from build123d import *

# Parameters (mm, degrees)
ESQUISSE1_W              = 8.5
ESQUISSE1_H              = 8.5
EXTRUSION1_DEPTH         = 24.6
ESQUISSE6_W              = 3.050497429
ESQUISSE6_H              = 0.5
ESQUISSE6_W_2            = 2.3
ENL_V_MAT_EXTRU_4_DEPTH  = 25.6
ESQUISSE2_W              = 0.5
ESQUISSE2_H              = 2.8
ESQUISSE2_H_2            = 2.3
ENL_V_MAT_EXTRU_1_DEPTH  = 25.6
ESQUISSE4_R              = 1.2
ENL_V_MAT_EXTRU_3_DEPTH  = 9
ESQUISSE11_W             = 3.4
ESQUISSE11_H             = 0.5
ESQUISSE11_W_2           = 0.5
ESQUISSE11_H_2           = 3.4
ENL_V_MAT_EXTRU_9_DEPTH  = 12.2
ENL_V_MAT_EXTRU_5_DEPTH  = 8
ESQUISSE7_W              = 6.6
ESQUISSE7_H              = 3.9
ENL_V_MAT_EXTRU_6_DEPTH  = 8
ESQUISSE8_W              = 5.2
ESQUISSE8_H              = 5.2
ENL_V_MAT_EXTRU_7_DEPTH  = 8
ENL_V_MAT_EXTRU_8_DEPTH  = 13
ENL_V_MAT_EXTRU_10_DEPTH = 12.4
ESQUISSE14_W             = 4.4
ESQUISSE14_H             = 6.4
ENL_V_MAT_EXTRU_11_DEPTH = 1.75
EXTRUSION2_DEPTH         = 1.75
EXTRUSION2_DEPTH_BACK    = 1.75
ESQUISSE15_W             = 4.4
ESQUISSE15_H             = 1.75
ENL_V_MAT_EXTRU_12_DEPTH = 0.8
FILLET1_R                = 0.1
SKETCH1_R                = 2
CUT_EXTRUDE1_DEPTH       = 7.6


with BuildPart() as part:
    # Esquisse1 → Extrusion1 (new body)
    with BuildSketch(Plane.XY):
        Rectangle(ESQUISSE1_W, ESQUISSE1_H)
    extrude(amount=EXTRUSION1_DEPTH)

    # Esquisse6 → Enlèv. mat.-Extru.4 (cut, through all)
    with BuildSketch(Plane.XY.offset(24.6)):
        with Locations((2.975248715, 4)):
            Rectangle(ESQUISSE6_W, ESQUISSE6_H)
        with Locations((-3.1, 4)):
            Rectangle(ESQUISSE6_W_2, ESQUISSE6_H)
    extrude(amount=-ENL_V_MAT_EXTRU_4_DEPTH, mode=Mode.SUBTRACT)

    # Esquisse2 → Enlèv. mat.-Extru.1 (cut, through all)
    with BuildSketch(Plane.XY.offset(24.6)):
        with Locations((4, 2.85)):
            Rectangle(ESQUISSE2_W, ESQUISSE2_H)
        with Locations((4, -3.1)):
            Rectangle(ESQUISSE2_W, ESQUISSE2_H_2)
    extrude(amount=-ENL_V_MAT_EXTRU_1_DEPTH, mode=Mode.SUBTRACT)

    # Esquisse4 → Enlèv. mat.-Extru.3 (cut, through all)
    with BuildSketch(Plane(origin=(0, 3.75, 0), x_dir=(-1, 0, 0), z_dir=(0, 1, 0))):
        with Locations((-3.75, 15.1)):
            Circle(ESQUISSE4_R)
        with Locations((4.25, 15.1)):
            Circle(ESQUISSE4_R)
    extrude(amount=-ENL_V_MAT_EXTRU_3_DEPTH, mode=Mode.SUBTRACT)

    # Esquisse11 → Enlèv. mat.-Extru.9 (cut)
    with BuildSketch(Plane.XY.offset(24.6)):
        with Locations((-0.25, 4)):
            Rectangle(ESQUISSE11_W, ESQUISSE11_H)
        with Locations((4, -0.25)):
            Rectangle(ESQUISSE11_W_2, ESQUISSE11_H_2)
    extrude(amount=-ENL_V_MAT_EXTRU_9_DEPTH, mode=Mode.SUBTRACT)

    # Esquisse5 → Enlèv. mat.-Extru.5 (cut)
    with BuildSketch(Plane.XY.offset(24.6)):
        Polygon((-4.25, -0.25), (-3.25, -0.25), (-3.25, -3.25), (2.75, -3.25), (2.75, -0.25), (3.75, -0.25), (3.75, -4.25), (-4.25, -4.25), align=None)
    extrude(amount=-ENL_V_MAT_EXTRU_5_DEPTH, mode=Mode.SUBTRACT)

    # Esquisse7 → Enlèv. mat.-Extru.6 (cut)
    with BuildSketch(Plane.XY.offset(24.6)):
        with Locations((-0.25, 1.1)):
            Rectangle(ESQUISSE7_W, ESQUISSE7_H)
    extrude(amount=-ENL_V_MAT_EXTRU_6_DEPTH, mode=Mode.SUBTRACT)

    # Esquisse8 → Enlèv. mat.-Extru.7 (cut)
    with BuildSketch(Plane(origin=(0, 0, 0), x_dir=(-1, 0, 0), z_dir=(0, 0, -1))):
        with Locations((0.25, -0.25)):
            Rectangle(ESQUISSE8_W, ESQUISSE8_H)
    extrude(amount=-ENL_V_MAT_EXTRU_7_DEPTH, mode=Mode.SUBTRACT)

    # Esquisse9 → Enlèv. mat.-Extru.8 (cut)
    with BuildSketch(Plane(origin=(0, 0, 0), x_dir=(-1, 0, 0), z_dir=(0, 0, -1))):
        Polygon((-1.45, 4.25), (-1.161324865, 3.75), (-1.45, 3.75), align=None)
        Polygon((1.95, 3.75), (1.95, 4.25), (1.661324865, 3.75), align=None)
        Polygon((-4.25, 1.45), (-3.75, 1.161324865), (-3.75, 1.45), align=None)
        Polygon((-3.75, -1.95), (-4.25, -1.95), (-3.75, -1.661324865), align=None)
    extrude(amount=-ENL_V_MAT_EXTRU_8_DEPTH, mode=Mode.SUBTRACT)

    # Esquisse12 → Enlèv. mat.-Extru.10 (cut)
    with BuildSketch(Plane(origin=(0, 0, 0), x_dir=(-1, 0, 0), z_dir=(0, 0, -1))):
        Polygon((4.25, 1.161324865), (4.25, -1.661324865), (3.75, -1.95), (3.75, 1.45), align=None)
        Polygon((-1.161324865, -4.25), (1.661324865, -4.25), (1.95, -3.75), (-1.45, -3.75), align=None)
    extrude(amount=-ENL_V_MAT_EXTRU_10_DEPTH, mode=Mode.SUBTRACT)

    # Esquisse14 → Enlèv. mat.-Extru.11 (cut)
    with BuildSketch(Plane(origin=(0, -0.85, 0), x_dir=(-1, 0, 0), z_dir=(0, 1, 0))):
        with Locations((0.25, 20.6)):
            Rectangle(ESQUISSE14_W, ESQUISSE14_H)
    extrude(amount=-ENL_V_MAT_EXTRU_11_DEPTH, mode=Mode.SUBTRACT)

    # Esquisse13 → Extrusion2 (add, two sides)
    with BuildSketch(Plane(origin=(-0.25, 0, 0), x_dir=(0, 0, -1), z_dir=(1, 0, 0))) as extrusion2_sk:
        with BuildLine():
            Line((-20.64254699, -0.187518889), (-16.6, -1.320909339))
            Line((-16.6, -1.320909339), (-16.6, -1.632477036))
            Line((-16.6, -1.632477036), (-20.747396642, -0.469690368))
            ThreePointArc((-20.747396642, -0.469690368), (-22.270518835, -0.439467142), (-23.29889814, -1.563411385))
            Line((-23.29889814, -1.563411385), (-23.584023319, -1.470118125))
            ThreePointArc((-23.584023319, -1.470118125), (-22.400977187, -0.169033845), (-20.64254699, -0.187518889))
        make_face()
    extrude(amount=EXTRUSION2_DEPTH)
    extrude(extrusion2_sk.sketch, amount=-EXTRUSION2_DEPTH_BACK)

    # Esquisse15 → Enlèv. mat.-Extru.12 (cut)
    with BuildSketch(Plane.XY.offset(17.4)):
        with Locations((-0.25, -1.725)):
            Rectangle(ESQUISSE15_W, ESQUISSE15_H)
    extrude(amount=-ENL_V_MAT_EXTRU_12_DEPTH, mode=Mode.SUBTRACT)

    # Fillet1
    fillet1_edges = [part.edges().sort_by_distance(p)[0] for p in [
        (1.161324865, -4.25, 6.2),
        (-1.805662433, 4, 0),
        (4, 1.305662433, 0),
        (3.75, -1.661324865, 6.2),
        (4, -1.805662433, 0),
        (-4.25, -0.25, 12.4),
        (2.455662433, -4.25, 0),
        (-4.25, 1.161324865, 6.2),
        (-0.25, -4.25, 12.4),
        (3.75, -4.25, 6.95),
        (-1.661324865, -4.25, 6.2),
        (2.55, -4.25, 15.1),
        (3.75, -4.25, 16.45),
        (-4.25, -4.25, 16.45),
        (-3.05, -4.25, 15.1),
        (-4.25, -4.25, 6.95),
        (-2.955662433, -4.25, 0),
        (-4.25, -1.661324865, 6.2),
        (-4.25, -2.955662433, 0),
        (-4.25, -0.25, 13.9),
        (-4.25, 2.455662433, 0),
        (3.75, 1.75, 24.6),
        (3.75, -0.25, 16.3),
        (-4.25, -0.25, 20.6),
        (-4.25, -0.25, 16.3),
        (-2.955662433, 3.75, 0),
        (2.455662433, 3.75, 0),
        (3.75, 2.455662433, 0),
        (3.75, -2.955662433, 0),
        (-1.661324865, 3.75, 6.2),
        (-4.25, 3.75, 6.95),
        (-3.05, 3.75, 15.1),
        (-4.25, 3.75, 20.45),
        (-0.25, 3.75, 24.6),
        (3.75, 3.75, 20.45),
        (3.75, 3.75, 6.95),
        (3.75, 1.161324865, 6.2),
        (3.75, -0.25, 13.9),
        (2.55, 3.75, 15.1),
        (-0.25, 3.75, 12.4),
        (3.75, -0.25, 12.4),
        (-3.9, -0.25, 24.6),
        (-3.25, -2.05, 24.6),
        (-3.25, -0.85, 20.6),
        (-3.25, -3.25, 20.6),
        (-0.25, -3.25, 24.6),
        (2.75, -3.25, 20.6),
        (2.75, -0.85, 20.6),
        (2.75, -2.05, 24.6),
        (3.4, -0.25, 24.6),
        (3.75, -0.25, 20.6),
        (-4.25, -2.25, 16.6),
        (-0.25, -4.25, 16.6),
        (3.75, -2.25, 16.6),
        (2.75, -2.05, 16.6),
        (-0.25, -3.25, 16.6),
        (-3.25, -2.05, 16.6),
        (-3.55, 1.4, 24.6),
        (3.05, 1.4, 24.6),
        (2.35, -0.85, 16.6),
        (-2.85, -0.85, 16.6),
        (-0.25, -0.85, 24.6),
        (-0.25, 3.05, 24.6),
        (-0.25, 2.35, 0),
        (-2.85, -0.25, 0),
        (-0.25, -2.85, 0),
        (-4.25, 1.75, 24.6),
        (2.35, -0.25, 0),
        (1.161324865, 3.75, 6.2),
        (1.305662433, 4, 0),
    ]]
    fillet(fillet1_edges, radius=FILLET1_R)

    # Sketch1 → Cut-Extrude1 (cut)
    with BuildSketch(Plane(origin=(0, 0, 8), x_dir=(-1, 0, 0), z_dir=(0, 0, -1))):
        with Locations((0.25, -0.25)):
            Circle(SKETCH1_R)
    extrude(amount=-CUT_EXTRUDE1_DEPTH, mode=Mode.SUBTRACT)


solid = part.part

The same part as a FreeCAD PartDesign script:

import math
import FreeCAD as App
import Part
import Sketcher

V = App.Vector
Q = App.Units.Quantity


def edges_at(feature, points):
    """Names of the edges that pass closest to the given points."""
    edges = feature.Shape.Edges
    near = lambda p: min(range(len(edges)), key=lambda i: edges[i].distToShape(Part.Vertex(*p))[0])
    return sorted({f"Edge{near(p) + 1}" for p in points})


def add_polygon(sketch, points):
    """Adds a closed chain of lines whose ends are joined by coincident constraints."""
    first, n = sketch.GeometryCount, len(points)
    for a, b in zip(points, points[1:] + points[:1]):
        sketch.addGeometry(Part.LineSegment(App.Vector(*a, 0), App.Vector(*b, 0)), False)
    for i in range(n):
        sketch.addConstraint(Sketcher.Constraint("Coincident", first + i, 2, first + (i + 1) % n, 1))

doc = App.newDocument("Part")
body = doc.addObject("PartDesign::Body", "Body")
body.AllowCompound = True

sketch1 = body.newObject("Sketcher::SketchObject", "Sketch")
sketch1.AttachmentSupport = (doc.getObject("XY_Plane"), [""])
sketch1.MapMode = "FlatFace"
add_polygon(sketch1, [(-4, 4), (-4, -4), (4, -4), (4, 4)])
sketch1.addConstraint(Sketcher.Constraint("Vertical", 0))
sketch1.addConstraint(Sketcher.Constraint("Horizontal", 1))
sketch1.addConstraint(Sketcher.Constraint("Vertical", 2))
sketch1.addConstraint(Sketcher.Constraint("Horizontal", 3))
sketch1.addConstraint(Sketcher.Constraint("Symmetric", 0, 2, 2, 2, -1, 1))
sketch1.addConstraint(Sketcher.Constraint("Equal", 3, 0))
sketch1.addConstraint(Sketcher.Constraint("DistanceX", 1, 1, 1, 2, Q("8.5 mm")))
pad1 = body.newObject("PartDesign::Pad", "Pad")
pad1.Profile = sketch1
pad1.Length = 24.6

sketch2 = body.newObject("Sketcher::SketchObject", "Sketch001")
sketch2.AttachmentSupport = (doc.getObject("XY_Plane"), [""])
sketch2.MapMode = "FlatFace"
sketch2.AttachmentOffset = App.Placement(V(0, 0, 24.6), App.Rotation())
add_polygon(sketch2, [(1.5, 4.2), (1.5, 3.8), (4.5, 3.8), (4.5, 4.2)])
add_polygon(sketch2, [(-4.2, 4.2), (-4.2, 3.8), (-1.9, 3.8), (-1.9, 4.2)])
sketch2.addConstraint(Sketcher.Constraint("Vertical", 0))
sketch2.addConstraint(Sketcher.Constraint("Horizontal", 1))
sketch2.addConstraint(Sketcher.Constraint("Vertical", 2))
sketch2.addConstraint(Sketcher.Constraint("Horizontal", 3))
sketch2.addConstraint(Sketcher.Constraint("Vertical", 4))
sketch2.addConstraint(Sketcher.Constraint("Horizontal", 5))
sketch2.addConstraint(Sketcher.Constraint("Vertical", 6))
sketch2.addConstraint(Sketcher.Constraint("Horizontal", 7))
sketch2.addConstraint(Sketcher.Constraint("Horizontal", 1, 2, 4, 2))
sketch2.addConstraint(Sketcher.Constraint("Horizontal", 3, 2, 6, 2))
sketch2.addConstraint(Sketcher.Constraint("DistanceX", 5, 1, 5, 2, Q("2.3 mm")))
sketch2.addConstraint(Sketcher.Constraint("DistanceY", 0, 2, 0, 1, Q("0.5 mm")))
sketch2.addConstraint(Sketcher.Constraint("DistanceX", 4, 2, 0, 2, Q("5.7 mm")))
sketch2.addConstraint(Sketcher.Constraint("DistanceX", -1, 1, 0, 2, Q("1.45 mm")))
sketch2.addConstraint(Sketcher.Constraint("DistanceY", -1, 1, 0, 2, Q("3.75 mm")))
sketch2.addConstraint(Sketcher.Constraint("DistanceX", 1, 1, 1, 2, Q("3.050497 mm")))
pocket1 = body.newObject("PartDesign::Pocket", "Pocket")
pocket1.Profile = sketch2
pocket1.Type = "ThroughAll"

sketch3 = body.newObject("Sketcher::SketchObject", "Sketch002")
sketch3.AttachmentSupport = (doc.getObject("XY_Plane"), [""])
sketch3.MapMode = "FlatFace"
sketch3.AttachmentOffset = App.Placement(V(0, 0, 24.6), App.Rotation())
add_polygon(sketch3, [(3.8, 4.2), (3.8, 1.4), (4.2, 1.4), (4.2, 4.2)])
add_polygon(sketch3, [(3.8, -1.9), (3.8, -4.2), (4.2, -4.2), (4.2, -1.9)])
sketch3.addConstraint(Sketcher.Constraint("Vertical", 0))
sketch3.addConstraint(Sketcher.Constraint("Horizontal", 1))
sketch3.addConstraint(Sketcher.Constraint("Vertical", 2))
sketch3.addConstraint(Sketcher.Constraint("Horizontal", 3))
sketch3.addConstraint(Sketcher.Constraint("Vertical", 4))
sketch3.addConstraint(Sketcher.Constraint("Horizontal", 5))
sketch3.addConstraint(Sketcher.Constraint("Vertical", 6))
sketch3.addConstraint(Sketcher.Constraint("Horizontal", 7))
sketch3.addConstraint(Sketcher.Constraint("Symmetric", 3, 2, 4, 2, -1))
sketch3.addConstraint(Sketcher.Constraint("Vertical", 2, 2, 5, 2))
sketch3.addConstraint(Sketcher.Constraint("DistanceX", 1, 1, 1, 2, Q("0.5 mm")))
sketch3.addConstraint(Sketcher.Constraint("DistanceY", 0, 2, 0, 1, Q("2.8 mm")))
sketch3.addConstraint(Sketcher.Constraint("DistanceY", 4, 2, 4, 1, Q("2.3 mm")))
sketch3.addConstraint(Sketcher.Constraint("DistanceY", 4, 2, 0, 2, Q("5.7 mm")))
sketch3.addConstraint(Sketcher.Constraint("DistanceX", -1, 1, 0, 2, Q("3.75 mm")))
pocket2 = body.newObject("PartDesign::Pocket", "Pocket001")
pocket2.Profile = sketch3
pocket2.Type = "ThroughAll"

sketch4 = body.newObject("Sketcher::SketchObject", "Sketch003")
sketch4.AttachmentSupport = (doc.getObject("XZ_Plane"), [""])
sketch4.MapMode = "FlatFace"
sketch4.AttachmentOffset = App.Placement(V(0, 0, -3.75), App.Rotation())
sketch4.addGeometry(Part.Circle(V(3.8, 15.1, 0), V(0, 0, 1), 1.2), False)
sketch4.addGeometry(Part.Circle(V(-4.2, 15.1, 0), V(0, 0, 1), 1.2), False)
sketch4.addConstraint(Sketcher.Constraint("Equal", 0, 1))
sketch4.addConstraint(Sketcher.Constraint("Horizontal", 0, 3, 1, 3))
sketch4.addConstraint(Sketcher.Constraint("Diameter", 0, Q("2.4 mm")))
sketch4.addConstraint(Sketcher.Constraint("DistanceX", 1, 3, 0, 3, Q("8 mm")))
sketch4.addConstraint(Sketcher.Constraint("DistanceY", -1, 1, 0, 3, Q("15.1 mm")))
sketch4.addConstraint(Sketcher.Constraint("DistanceX", -1, 1, 0, 3, Q("3.75 mm")))
pocket3 = body.newObject("PartDesign::Pocket", "Pocket002")
pocket3.Profile = sketch4
pocket3.Type = "ThroughAll"
pocket3.Reversed = True

sketch5 = body.newObject("Sketcher::SketchObject", "Sketch004")
sketch5.AttachmentSupport = (doc.getObject("XY_Plane"), [""])
sketch5.MapMode = "FlatFace"
sketch5.AttachmentOffset = App.Placement(V(0, 0, 24.6), App.Rotation())
add_polygon(sketch5, [(-1.9, 4.2), (-1.9, 3.8), (1.4, 3.8), (1.4, 4.2)])
add_polygon(sketch5, [(3.8, 1.4), (3.8, -1.9), (4.2, -1.9), (4.2, 1.4)])
sketch5.addConstraint(Sketcher.Constraint("Vertical", 0))
sketch5.addConstraint(Sketcher.Constraint("Horizontal", 1))
sketch5.addConstraint(Sketcher.Constraint("Vertical", 2))
sketch5.addConstraint(Sketcher.Constraint("Horizontal", 3))
sketch5.addConstraint(Sketcher.Constraint("Vertical", 4))
sketch5.addConstraint(Sketcher.Constraint("Horizontal", 5))
sketch5.addConstraint(Sketcher.Constraint("Vertical", 6))
sketch5.addConstraint(Sketcher.Constraint("Horizontal", 7))
sketch5.addConstraint(Sketcher.Constraint("Equal", 7, 0))
sketch5.addConstraint(Sketcher.Constraint("Equal", 3, 4))
sketch5.addConstraint(Sketcher.Constraint("DistanceX", 1, 1, 1, 2, Q("3.4 mm")))
sketch5.addConstraint(Sketcher.Constraint("DistanceX", 5, 1, 5, 2, Q("0.5 mm")))
sketch5.addConstraint(Sketcher.Constraint("DistanceX", 1, 2, 4, 2, Q("2.3 mm")))
sketch5.addConstraint(Sketcher.Constraint("DistanceY", 4, 2, 1, 2, Q("5.7 mm")))
sketch5.addConstraint(Sketcher.Constraint("DistanceX", 0, 2, -1, 1, Q("1.95 mm")))
sketch5.addConstraint(Sketcher.Constraint("DistanceY", -1, 1, 0, 2, Q("3.75 mm")))
pocket4 = body.newObject("PartDesign::Pocket", "Pocket003")
pocket4.Profile = sketch5
pocket4.Length = 12.2

sketch6 = body.newObject("Sketcher::SketchObject", "Sketch005")
sketch6.AttachmentSupport = (doc.getObject("XY_Plane"), [""])
sketch6.MapMode = "FlatFace"
sketch6.AttachmentOffset = App.Placement(V(0, 0, 24.6), App.Rotation())
add_polygon(sketch6, [(-3.2, -0.2), (-4.2, -0.2), (-4.2, -4.2), (3.8, -4.2), (3.8, -0.2), (2.8, -0.2), (2.8, -3.2), (-3.2, -3.2)])
sketch6.addConstraint(Sketcher.Constraint("Horizontal", 0))
sketch6.addConstraint(Sketcher.Constraint("Vertical", 1))
sketch6.addConstraint(Sketcher.Constraint("Horizontal", 2))
sketch6.addConstraint(Sketcher.Constraint("Vertical", 3))
sketch6.addConstraint(Sketcher.Constraint("Horizontal", 4))
sketch6.addConstraint(Sketcher.Constraint("Vertical", 5))
sketch6.addConstraint(Sketcher.Constraint("Horizontal", 6))
sketch6.addConstraint(Sketcher.Constraint("Vertical", 7))
sketch6.addConstraint(Sketcher.Constraint("Horizontal", 0, 2, 3, 2))
sketch6.addConstraint(Sketcher.Constraint("Equal", 0, 4))
sketch6.addConstraint(Sketcher.Constraint("DistanceX", 0, 2, 0, 1, Q("1 mm")))
sketch6.addConstraint(Sketcher.Constraint("DistanceX", 2, 1, 2, 2, Q("8 mm")))
sketch6.addConstraint(Sketcher.Constraint("DistanceY", 1, 2, 1, 1, Q("4 mm")))
sketch6.addConstraint(Sketcher.Constraint("DistanceY", 5, 2, 5, 1, Q("3 mm")))
sketch6.addConstraint(Sketcher.Constraint("DistanceX", 0, 2, -1, 1, Q("4.25 mm")))
sketch6.addConstraint(Sketcher.Constraint("DistanceY", 0, 2, -1, 1, Q("0.25 mm")))
pocket5 = body.newObject("PartDesign::Pocket", "Pocket004")
pocket5.Profile = sketch6
pocket5.Length = 8

sketch7 = body.newObject("Sketcher::SketchObject", "Sketch006")
sketch7.AttachmentSupport = (doc.getObject("XY_Plane"), [""])
sketch7.MapMode = "FlatFace"
sketch7.AttachmentOffset = App.Placement(V(0, 0, 24.6), App.Rotation())
add_polygon(sketch7, [(-3.5, 3), (-3.5, -0.8), (3, -0.8), (3, 3)])
sketch7.addConstraint(Sketcher.Constraint("Vertical", 0))
sketch7.addConstraint(Sketcher.Constraint("Horizontal", 1))
sketch7.addConstraint(Sketcher.Constraint("Vertical", 2))
sketch7.addConstraint(Sketcher.Constraint("Horizontal", 3))
sketch7.addConstraint(Sketcher.Constraint("DistanceX", 1, 1, 1, 2, Q("6.6 mm")))
sketch7.addConstraint(Sketcher.Constraint("DistanceY", 0, 2, 0, 1, Q("3.9 mm")))
sketch7.addConstraint(Sketcher.Constraint("DistanceX", 0, 2, -1, 1, Q("3.55 mm")))
sketch7.addConstraint(Sketcher.Constraint("DistanceY", 0, 2, -1, 1, Q("0.85 mm")))
pocket6 = body.newObject("PartDesign::Pocket", "Pocket005")
pocket6.Profile = sketch7
pocket6.Length = 8

sketch8 = body.newObject("Sketcher::SketchObject", "Sketch007")
sketch8.AttachmentSupport = (doc.getObject("XY_Plane"), [""])
sketch8.MapMode = "FlatFace"
add_polygon(sketch8, [(2, 2), (2, -3), (-3, -3), (-3, 2)])
sketch8.addConstraint(Sketcher.Constraint("Vertical", 0))
sketch8.addConstraint(Sketcher.Constraint("Horizontal", 1))
sketch8.addConstraint(Sketcher.Constraint("Vertical", 2))
sketch8.addConstraint(Sketcher.Constraint("Horizontal", 3))
sketch8.addConstraint(Sketcher.Constraint("Equal", 3, 0))
sketch8.addConstraint(Sketcher.Constraint("DistanceX", 1, 2, 1, 1, Q("5.2 mm")))
sketch8.addConstraint(Sketcher.Constraint("DistanceX", -1, 1, 0, 2, Q("2.35 mm")))
sketch8.addConstraint(Sketcher.Constraint("DistanceY", 0, 2, -1, 1, Q("2.85 mm")))
pocket7 = body.newObject("PartDesign::Pocket", "Pocket006")
pocket7.Profile = sketch8
pocket7.Length = 8
pocket7.Reversed = True

sketch9 = body.newObject("Sketcher::SketchObject", "Sketch008")
sketch9.AttachmentSupport = (doc.getObject("XY_Plane"), [""])
sketch9.MapMode = "FlatFace"
add_polygon(sketch9, [(1.16, 3.75), (1.45, 4.25), (1.45, 3.75)])
add_polygon(sketch9, [(-1.95, 3.75), (-1.95, 4.25), (-1.66, 3.75)])
add_polygon(sketch9, [(4.25, 1.45), (3.75, 1.16), (3.75, 1.45)])
add_polygon(sketch9, [(4.25, -1.95), (3.75, -1.95), (3.75, -1.66)])
sketch9.addConstraint(Sketcher.Constraint("Vertical", 1))
sketch9.addConstraint(Sketcher.Constraint("Horizontal", 2))
sketch9.addConstraint(Sketcher.Constraint("Vertical", 3))
sketch9.addConstraint(Sketcher.Constraint("Horizontal", 5))
sketch9.addConstraint(Sketcher.Constraint("Vertical", 7))
sketch9.addConstraint(Sketcher.Constraint("Horizontal", 8))
sketch9.addConstraint(Sketcher.Constraint("Horizontal", 9))
sketch9.addConstraint(Sketcher.Constraint("Vertical", 10))
sketch9.addConstraint(Sketcher.Constraint("Perpendicular", 4, 6))
sketch9.addConstraint(Sketcher.Constraint("Perpendicular", 0, 11))
sketch9.addConstraint(Sketcher.Constraint("Horizontal", 0, 2, 3, 2))
sketch9.addConstraint(Sketcher.Constraint("Horizontal", 2, 2, 4, 2))
sketch9.addConstraint(Sketcher.Constraint("Vertical", 7, 2, 9, 2))
sketch9.addConstraint(Sketcher.Constraint("Vertical", 8, 2, 11, 2))
sketch9.addConstraint(Sketcher.Constraint("Equal", 2, 5))
sketch9.addConstraint(Sketcher.Constraint("Equal", 9, 1))
sketch9.addConstraint(Sketcher.Constraint("Angle", 0, Q("60 deg")))
sketch9.addConstraint(Sketcher.Constraint("DistanceX", 8, 1, 8, 2, Q("0.5 mm")))
sketch9.addConstraint(Sketcher.Constraint("DistanceX", 3, 2, 0, 2, Q("3.4 mm")))
sketch9.addConstraint(Sketcher.Constraint("DistanceX", 1, 2, 6, 2, Q("2.3 mm")))
sketch9.addConstraint(Sketcher.Constraint("DistanceY", 7, 2, 1, 2, Q("2.3 mm")))
sketch9.addConstraint(Sketcher.Constraint("DistanceY", 9, 2, 7, 2, Q("3.4 mm")))
sketch9.addConstraint(Sketcher.Constraint("DistanceX", -1, 1, 0, 2, Q("1.45 mm")))
sketch9.addConstraint(Sketcher.Constraint("DistanceY", -1, 1, 0, 2, Q("4.25 mm")))
pocket8 = body.newObject("PartDesign::Pocket", "Pocket007")
pocket8.Profile = sketch9
pocket8.Length = 13
pocket8.Reversed = True

sketch10 = body.newObject("Sketcher::SketchObject", "Sketch009")
sketch10.AttachmentSupport = (doc.getObject("XY_Plane"), [""])
sketch10.MapMode = "FlatFace"
add_polygon(sketch10, [(-4.2, -1.7), (-4.2, 1.2), (-3.8, 1.4), (-3.8, -1.9)])
add_polygon(sketch10, [(1.2, -4.2), (-1.7, -4.2), (-1.9, -3.8), (1.4, -3.8)])
sketch10.addConstraint(Sketcher.Constraint("Vertical", 0))
sketch10.addConstraint(Sketcher.Constraint("Vertical", 2))
sketch10.addConstraint(Sketcher.Constraint("Horizontal", 4))
sketch10.addConstraint(Sketcher.Constraint("Horizontal", 6))
sketch10.addConstraint(Sketcher.Constraint("Perpendicular", 1, 5))
sketch10.addConstraint(Sketcher.Constraint("Perpendicular", 3, 7))
sketch10.addConstraint(Sketcher.Constraint("Equal", 4, 0))
sketch10.addConstraint(Sketcher.Constraint("Equal", 6, 2))
sketch10.addConstraint(Sketcher.Constraint("Equal", 1, 3))
sketch10.addConstraint(Sketcher.Constraint("Angle", 1, Q("30 deg")))
sketch10.addConstraint(Sketcher.Constraint("DistanceX", 6, 1, 6, 2, Q("3.4 mm")))
sketch10.addConstraint(Sketcher.Constraint("DistanceX", 0, 2, 1, 2, Q("0.5 mm")))
sketch10.addConstraint(Sketcher.Constraint("DistanceY", 4, 2, 2, 2, Q("2.3 mm")))
sketch10.addConstraint(Sketcher.Constraint("DistanceX", 2, 2, 5, 2, Q("1.8 mm")))
sketch10.addConstraint(Sketcher.Constraint("DistanceX", 0, 2, -1, 1, Q("4.25 mm")))
sketch10.addConstraint(Sketcher.Constraint("DistanceY", -1, 1, 1, 2, Q("1.45 mm")))
pocket9 = body.newObject("PartDesign::Pocket", "Pocket008")
pocket9.Profile = sketch10
pocket9.Length = 12.4
pocket9.Reversed = True

sketch11 = body.newObject("Sketcher::SketchObject", "Sketch010")
sketch11.AttachmentSupport = (doc.getObject("XZ_Plane"), [""])
sketch11.MapMode = "FlatFace"
sketch11.AttachmentOffset = App.Placement(V(0, 0, 0.85), App.Rotation())
add_polygon(sketch11, [(1.9, 23.8), (1.9, 17.4), (-2.5, 17.4), (-2.5, 23.8)])
sketch11.addConstraint(Sketcher.Constraint("Vertical", 0))
sketch11.addConstraint(Sketcher.Constraint("Horizontal", 1))
sketch11.addConstraint(Sketcher.Constraint("Vertical", 2))
sketch11.addConstraint(Sketcher.Constraint("Horizontal", 3))
sketch11.addConstraint(Sketcher.Constraint("DistanceX", 1, 2, 1, 1, Q("4.4 mm")))
sketch11.addConstraint(Sketcher.Constraint("DistanceY", 0, 2, 0, 1, Q("6.4 mm")))
sketch11.addConstraint(Sketcher.Constraint("DistanceY", -1, 1, 0, 2, Q("17.4 mm")))
sketch11.addConstraint(Sketcher.Constraint("DistanceX", -1, 1, 0, 2, Q("1.95 mm")))
pocket10 = body.newObject("PartDesign::Pocket", "Pocket009")
pocket10.Profile = sketch11
pocket10.Length = 1.75
pocket10.Reversed = True

sketch12 = body.newObject("Sketcher::SketchObject", "Sketch011")
sketch12.AttachmentSupport = (doc.getObject("YZ_Plane"), [""])
sketch12.MapMode = "FlatFace"
sketch12.AttachmentOffset = App.Placement(V(0, 0, -0.25), App.Rotation())
sketch12.addGeometry(Part.LineSegment(V(-1.320909, 16.6, 0), V(-0.187519, 20.642547, 0)), False)
sketch12.addGeometry(Part.ArcOfCircle(Part.Circle(V(-2.138151, 21.542365, 0), V(0, 0, 1), 2.148171), math.radians(-24.763663), math.radians(71.881849)), False)
sketch12.addGeometry(Part.LineSegment(V(-1.470118, 23.584023, 0), V(-1.563411, 23.298898, 0)), False)
sketch12.addGeometry(Part.ArcOfCircle(Part.Circle(V(-2.138151, 21.542365, 0), V(0, 0, 1), 1.848171), math.radians(-25.476307), math.radians(71.881849)), False)
sketch12.addGeometry(Part.LineSegment(V(-0.46969, 20.747397, 0), V(-1.632477, 16.6, 0)), False)
sketch12.addGeometry(Part.LineSegment(V(-1.632477, 16.6, 0), V(-1.320909, 16.6, 0)), False)
sketch12.addConstraint(Sketcher.Constraint("Coincident", 0, 2, 1, 1))
sketch12.addConstraint(Sketcher.Constraint("Coincident", 1, 2, 2, 1))
sketch12.addConstraint(Sketcher.Constraint("Coincident", 2, 2, 3, 2))
sketch12.addConstraint(Sketcher.Constraint("Coincident", 3, 1, 4, 1))
sketch12.addConstraint(Sketcher.Constraint("Coincident", 4, 2, 5, 1))
sketch12.addConstraint(Sketcher.Constraint("Coincident", 5, 2, 0, 1))
sketch12.addConstraint(Sketcher.Constraint("Horizontal", 5))
sketch12.addConstraint(Sketcher.Constraint("Coincident", 3, 3, 1, 3))
sketch12.addConstraint(Sketcher.Constraint("Distance", 2, Q("0.3 mm")))
sketch12.addConstraint(Sketcher.Constraint("DistanceY", -1, 1, 4, 2, Q("16.6 mm")))
sketch12.addConstraint(Sketcher.Constraint("Radius", 1, Q("2.148171 mm")))
sketch12.addConstraint(Sketcher.Constraint("DistanceY", -1, 1, 2, 2, Q("23.298898 mm")))
sketch12.addConstraint(Sketcher.Constraint("DistanceX", 1, 2, 0, 2, Q("1.282599 mm")))
sketch12.addConstraint(Sketcher.Constraint("DistanceY", 3, 1, 2, 2, Q("2.551501 mm")))
sketch12.addConstraint(Sketcher.Constraint("DistanceX", 5, 1, 5, 2, Q("0.311568 mm")))
sketch12.addConstraint(Sketcher.Constraint("DistanceX", 1, 3, -1, 1, Q("2.138151 mm")))
sketch12.addConstraint(Sketcher.Constraint("DistanceX", 0, 2, -1, 1, Q("0.187519 mm")))
sketch12.addConstraint(Sketcher.Constraint("DistanceX", 2, 2, -1, 1, Q("1.563411 mm")))
sketch12.addConstraint(Sketcher.Constraint("DistanceX", 5, 2, -1, 1, Q("1.320909 mm")))
pad2 = body.newObject("PartDesign::Pad", "Pad001")
pad2.Profile = sketch12
pad2.Type = "TwoLengths"
pad2.Length = 1.75
pad2.Length2 = 1.75

sketch13 = body.newObject("Sketcher::SketchObject", "Sketch012")
sketch13.AttachmentSupport = (doc.getObject("XY_Plane"), [""])
sketch13.MapMode = "FlatFace"
sketch13.AttachmentOffset = App.Placement(V(0, 0, 17.4), App.Rotation())
add_polygon(sketch13, [(-2.5, -0.8), (-2.5, -2.6), (1.9, -2.6), (1.9, -0.8)])
sketch13.addConstraint(Sketcher.Constraint("Vertical", 0))
sketch13.addConstraint(Sketcher.Constraint("Horizontal", 1))
sketch13.addConstraint(Sketcher.Constraint("Vertical", 2))
sketch13.addConstraint(Sketcher.Constraint("Horizontal", 3))
sketch13.addConstraint(Sketcher.Constraint("DistanceX", 1, 1, 1, 2, Q("4.4 mm")))
sketch13.addConstraint(Sketcher.Constraint("DistanceY", 0, 2, 0, 1, Q("1.75 mm")))
sketch13.addConstraint(Sketcher.Constraint("DistanceY", 0, 2, -1, 1, Q("2.6 mm")))
sketch13.addConstraint(Sketcher.Constraint("DistanceX", 0, 2, -1, 1, Q("2.45 mm")))
pocket11 = body.newObject("PartDesign::Pocket", "Pocket010")
pocket11.Profile = sketch13
pocket11.Length = 0.8
doc.recompute()

fillet = body.newObject("PartDesign::Fillet", "Fillet")
fillet.Base = (pocket11, edges_at(pocket11, [
    (1.161, -4.25, 6.2),
    (-1.806, 4, 0),
    (4, 1.306, 0),
    (3.75, -1.661, 6.2),
    (4, -1.806, 0),
    (-4.25, -0.25, 12.4),
    (2.456, -4.25, 0),
    (-4.25, 1.161, 6.2),
    (-0.25, -4.25, 12.4),
    (3.75, -4.25, 6.95),
    (-1.661, -4.25, 6.2),
    (2.55, -4.25, 15.1),
    (3.75, -4.25, 16.45),
    (-4.25, -4.25, 16.45),
    (-3.05, -4.25, 15.1),
    (-4.25, -4.25, 6.95),
    (-2.956, -4.25, 0),
    (-4.25, -1.661, 6.2),
    (-4.25, -2.956, 0),
    (-4.25, -0.25, 13.9),
    (-4.25, 2.456, 0),
    (3.75, 1.75, 24.6),
    (3.75, -0.25, 16.3),
    (-4.25, -0.25, 20.6),
    (-4.25, -0.25, 16.3),
    (-2.956, 3.75, 0),
    (2.456, 3.75, 0),
    (3.75, 2.456, 0),
    (3.75, -2.956, 0),
    (-1.661, 3.75, 6.2),
    (-4.25, 3.75, 6.95),
    (-3.05, 3.75, 15.1),
    (-4.25, 3.75, 20.45),
    (-0.25, 3.75, 24.6),
    (3.75, 3.75, 20.45),
    (3.75, 3.75, 6.95),
    (3.75, 1.161, 6.2),
    (3.75, -0.25, 13.9),
    (2.55, 3.75, 15.1),
    (-0.25, 3.75, 12.4),
    (3.75, -0.25, 12.4),
    (-3.9, -0.25, 24.6),
    (-3.25, -2.05, 24.6),
    (-3.25, -0.85, 20.6),
    (-3.25, -3.25, 20.6),
    (-0.25, -3.25, 24.6),
    (2.75, -3.25, 20.6),
    (2.75, -0.85, 20.6),
    (2.75, -2.05, 24.6),
    (3.4, -0.25, 24.6),
    (3.75, -0.25, 20.6),
    (-4.25, -2.25, 16.6),
    (-0.25, -4.25, 16.6),
    (3.75, -2.25, 16.6),
    (2.75, -2.05, 16.6),
    (-0.25, -3.25, 16.6),
    (-3.25, -2.05, 16.6),
    (-3.55, 1.4, 24.6),
    (3.05, 1.4, 24.6),
    (2.35, -0.85, 16.6),
    (-2.85, -0.85, 16.6),
    (-0.25, -0.85, 24.6),
    (-0.25, 3.05, 24.6),
    (-0.25, 2.35, 0),
    (-2.85, -0.25, 0),
    (-0.25, -2.85, 0),
    (-4.25, 1.75, 24.6),
    (2.35, -0.25, 0),
    (1.161, 3.75, 6.2),
    (1.306, 4, 0),
]))
fillet.Radius = 0.1

sketch14 = body.newObject("Sketcher::SketchObject", "Sketch013")
sketch14.AttachmentSupport = (doc.getObject("XY_Plane"), [""])
sketch14.MapMode = "FlatFace"
sketch14.AttachmentOffset = App.Placement(V(0, 0, 8), App.Rotation())
sketch14.addGeometry(Part.Circle(V(-0.2, -0.2, 0), V(0, 0, 1), 2), False)
sketch14.addConstraint(Sketcher.Constraint("Diameter", 0, Q("4 mm")))
sketch14.addConstraint(Sketcher.Constraint("DistanceX", 0, 3, -1, 1, Q("0.25 mm")))
sketch14.addConstraint(Sketcher.Constraint("DistanceY", 0, 3, -1, 1, Q("0.25 mm")))
pocket12 = body.newObject("PartDesign::Pocket", "Pocket011")
pocket12.Profile = sketch14
pocket12.Length = 7.6
pocket12.Reversed = True

doc.recompute()
